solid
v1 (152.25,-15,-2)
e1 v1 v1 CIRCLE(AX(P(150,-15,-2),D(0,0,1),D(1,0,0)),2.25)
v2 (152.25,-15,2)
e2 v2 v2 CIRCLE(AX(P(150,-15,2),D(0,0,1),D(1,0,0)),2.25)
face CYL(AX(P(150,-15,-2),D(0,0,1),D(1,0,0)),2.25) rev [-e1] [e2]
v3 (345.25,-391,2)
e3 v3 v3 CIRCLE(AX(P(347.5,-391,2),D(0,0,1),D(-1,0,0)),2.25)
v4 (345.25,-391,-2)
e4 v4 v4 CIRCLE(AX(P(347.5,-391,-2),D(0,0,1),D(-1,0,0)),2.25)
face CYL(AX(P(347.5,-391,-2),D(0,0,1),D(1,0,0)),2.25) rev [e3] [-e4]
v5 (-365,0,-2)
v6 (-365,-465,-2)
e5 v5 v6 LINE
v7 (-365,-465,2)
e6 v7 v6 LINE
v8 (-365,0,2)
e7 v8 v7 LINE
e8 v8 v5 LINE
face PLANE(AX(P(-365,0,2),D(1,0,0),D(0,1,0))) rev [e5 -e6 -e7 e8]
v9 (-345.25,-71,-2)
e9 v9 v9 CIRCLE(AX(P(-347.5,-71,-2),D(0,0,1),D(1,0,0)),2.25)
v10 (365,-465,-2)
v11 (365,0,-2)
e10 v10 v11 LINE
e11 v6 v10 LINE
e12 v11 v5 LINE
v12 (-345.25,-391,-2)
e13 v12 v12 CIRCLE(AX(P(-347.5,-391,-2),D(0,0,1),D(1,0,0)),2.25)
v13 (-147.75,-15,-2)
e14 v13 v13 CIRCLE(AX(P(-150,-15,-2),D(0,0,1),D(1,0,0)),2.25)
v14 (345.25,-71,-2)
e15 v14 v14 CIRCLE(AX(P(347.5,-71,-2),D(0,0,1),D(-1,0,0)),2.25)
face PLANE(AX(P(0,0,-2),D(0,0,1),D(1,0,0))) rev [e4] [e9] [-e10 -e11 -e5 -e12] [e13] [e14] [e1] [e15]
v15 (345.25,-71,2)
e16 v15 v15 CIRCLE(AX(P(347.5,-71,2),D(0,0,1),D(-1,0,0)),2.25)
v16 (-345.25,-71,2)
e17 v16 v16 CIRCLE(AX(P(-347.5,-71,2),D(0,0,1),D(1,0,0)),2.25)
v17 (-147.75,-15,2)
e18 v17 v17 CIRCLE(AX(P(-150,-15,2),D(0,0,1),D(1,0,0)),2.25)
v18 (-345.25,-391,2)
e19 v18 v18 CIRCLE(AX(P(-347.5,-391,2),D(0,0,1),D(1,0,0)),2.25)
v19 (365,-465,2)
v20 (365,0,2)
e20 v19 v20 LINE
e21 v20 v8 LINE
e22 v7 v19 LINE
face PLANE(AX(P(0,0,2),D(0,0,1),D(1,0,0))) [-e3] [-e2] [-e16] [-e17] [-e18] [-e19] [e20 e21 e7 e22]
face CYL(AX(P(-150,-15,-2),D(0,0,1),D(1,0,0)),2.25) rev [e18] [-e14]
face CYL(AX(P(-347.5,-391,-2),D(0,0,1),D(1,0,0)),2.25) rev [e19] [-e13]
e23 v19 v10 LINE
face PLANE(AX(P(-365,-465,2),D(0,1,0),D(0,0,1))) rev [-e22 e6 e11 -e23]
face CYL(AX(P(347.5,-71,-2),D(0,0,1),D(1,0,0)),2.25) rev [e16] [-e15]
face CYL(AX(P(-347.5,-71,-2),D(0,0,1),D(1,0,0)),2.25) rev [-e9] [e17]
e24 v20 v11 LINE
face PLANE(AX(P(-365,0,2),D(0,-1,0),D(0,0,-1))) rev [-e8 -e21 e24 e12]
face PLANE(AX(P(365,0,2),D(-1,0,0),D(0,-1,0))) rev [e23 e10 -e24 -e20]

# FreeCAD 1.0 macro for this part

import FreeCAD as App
import Part
import Sketcher
from FreeCAD import Vector
Q = App.Units.Quantity

doc = App.newDocument("Part")
body = doc.addObject("PartDesign::Body", "Body")

# Sketch on XY plane
sketch1 = body.newObject("Sketcher::SketchObject", "Sketch")
sketch1.AttachmentSupport = (doc.getObject("XY_Plane"), [""])
sketch1.MapMode = "FlatFace"
sketch1.addGeometry(Part.LineSegment(Vector(-365, 0, 0), Vector(-365, -465, 0)), False)
sketch1.addGeometry(Part.LineSegment(Vector(-365, -465, 0), Vector(365, -465, 0)), False)
sketch1.addGeometry(Part.LineSegment(Vector(365, -465, 0), Vector(365, 0, 0)), False)
sketch1.addGeometry(Part.LineSegment(Vector(365, 0, 0), Vector(-365, 0, 0)), False)
sketch1.addConstraint(Sketcher.Constraint("Coincident", 0, 2, 1, 1))
sketch1.addConstraint(Sketcher.Constraint("Coincident", 1, 2, 2, 1))
sketch1.addConstraint(Sketcher.Constraint("Coincident", 2, 2, 3, 1))
sketch1.addConstraint(Sketcher.Constraint("Coincident", 3, 2, 0, 1))
sketch1.addConstraint(Sketcher.Constraint("Vertical", 0))
sketch1.addConstraint(Sketcher.Constraint("Horizontal", 1))
sketch1.addConstraint(Sketcher.Constraint("Vertical", 2))
sketch1.addConstraint(Sketcher.Constraint("Horizontal", 3))
sketch1.addConstraint(Sketcher.Constraint("Symmetric", 2, 2, 3, 2, -1, 1))
sketch1.addConstraint(Sketcher.Constraint("DistanceX", 1, 1, 1, 2, Q("730 mm")))
sketch1.addConstraint(Sketcher.Constraint("DistanceY", 0, 2, 0, 1, Q("465 mm")))
pad1 = body.newObject("PartDesign::Pad", "Pad")
pad1.Profile = sketch1
pad1.Length = 4
pad1.Midplane = True

# Sketch on XY plane
sketch2 = body.newObject("Sketcher::SketchObject", "Sketch001")
sketch2.AttachmentSupport = (doc.getObject("XY_Plane"), [""])
sketch2.MapMode = "FlatFace"
sketch2.AttachmentOffset = App.Placement(Vector(0, 0, 2), App.Rotation())
sketch2.addGeometry(Part.Circle(Vector(-150, -15, 0), Vector(0, 0, 1), 2.25), False)
sketch2.addGeometry(Part.Circle(Vector(150, -15, 0), Vector(0, 0, 1), 2.25), False)
sketch2.addGeometry(Part.Circle(Vector(-347.5, -71, 0), Vector(0, 0, 1), 2.25), False)
sketch2.addGeometry(Part.Circle(Vector(-347.5, -391, 0), Vector(0, 0, 1), 2.25), False)
sketch2.addGeometry(Part.Circle(Vector(347.5, -391, 0), Vector(0, 0, 1), 2.25), False)
sketch2.addGeometry(Part.Circle(Vector(347.5, -71, 0), Vector(0, 0, 1), 2.25), False)
sketch2.addConstraint(Sketcher.Constraint("Equal", 0, 1))
sketch2.addConstraint(Sketcher.Constraint("Equal", 1, 2))
sketch2.addConstraint(Sketcher.Constraint("Equal", 2, 3))
sketch2.addConstraint(Sketcher.Constraint("Equal", 3, 4))
sketch2.addConstraint(Sketcher.Constraint("Equal", 4, 5))
sketch2.addConstraint(Sketcher.Constraint("Symmetric", 0, 3, 1, 3, -2))
sketch2.addConstraint(Sketcher.Constraint("Symmetric", 3, 3, 4, 3, -2))
sketch2.addConstraint(Sketcher.Constraint("Symmetric", 2, 3, 5, 3, -2))
sketch2.addConstraint(Sketcher.Constraint("Vertical", 2, 3, 3, 3))
sketch2.addConstraint(Sketcher.Constraint("Diameter", 0, Q("4.5 mm")))
sketch2.addConstraint(Sketcher.Constraint("DistanceX", 0, 3, -1, 1, Q("150 mm")))
sketch2.addConstraint(Sketcher.Constraint("DistanceY", 0, 3, -1, 1, Q("15 mm")))
sketch2.addConstraint(Sketcher.Constraint("DistanceY", 2, 3, -1, 1, Q("71 mm")))
sketch2.addConstraint(Sketcher.Constraint("DistanceY", 3, 3, -1, 1, Q("391 mm")))
sketch2.addConstraint(Sketcher.Constraint("DistanceX", 3, 3, 4, 3, Q("695 mm")))
pocket1 = body.newObject("PartDesign::Pocket", "Pocket")
pocket1.Profile = sketch2
pocket1.Type = "ThroughAll"

doc.recompute()
